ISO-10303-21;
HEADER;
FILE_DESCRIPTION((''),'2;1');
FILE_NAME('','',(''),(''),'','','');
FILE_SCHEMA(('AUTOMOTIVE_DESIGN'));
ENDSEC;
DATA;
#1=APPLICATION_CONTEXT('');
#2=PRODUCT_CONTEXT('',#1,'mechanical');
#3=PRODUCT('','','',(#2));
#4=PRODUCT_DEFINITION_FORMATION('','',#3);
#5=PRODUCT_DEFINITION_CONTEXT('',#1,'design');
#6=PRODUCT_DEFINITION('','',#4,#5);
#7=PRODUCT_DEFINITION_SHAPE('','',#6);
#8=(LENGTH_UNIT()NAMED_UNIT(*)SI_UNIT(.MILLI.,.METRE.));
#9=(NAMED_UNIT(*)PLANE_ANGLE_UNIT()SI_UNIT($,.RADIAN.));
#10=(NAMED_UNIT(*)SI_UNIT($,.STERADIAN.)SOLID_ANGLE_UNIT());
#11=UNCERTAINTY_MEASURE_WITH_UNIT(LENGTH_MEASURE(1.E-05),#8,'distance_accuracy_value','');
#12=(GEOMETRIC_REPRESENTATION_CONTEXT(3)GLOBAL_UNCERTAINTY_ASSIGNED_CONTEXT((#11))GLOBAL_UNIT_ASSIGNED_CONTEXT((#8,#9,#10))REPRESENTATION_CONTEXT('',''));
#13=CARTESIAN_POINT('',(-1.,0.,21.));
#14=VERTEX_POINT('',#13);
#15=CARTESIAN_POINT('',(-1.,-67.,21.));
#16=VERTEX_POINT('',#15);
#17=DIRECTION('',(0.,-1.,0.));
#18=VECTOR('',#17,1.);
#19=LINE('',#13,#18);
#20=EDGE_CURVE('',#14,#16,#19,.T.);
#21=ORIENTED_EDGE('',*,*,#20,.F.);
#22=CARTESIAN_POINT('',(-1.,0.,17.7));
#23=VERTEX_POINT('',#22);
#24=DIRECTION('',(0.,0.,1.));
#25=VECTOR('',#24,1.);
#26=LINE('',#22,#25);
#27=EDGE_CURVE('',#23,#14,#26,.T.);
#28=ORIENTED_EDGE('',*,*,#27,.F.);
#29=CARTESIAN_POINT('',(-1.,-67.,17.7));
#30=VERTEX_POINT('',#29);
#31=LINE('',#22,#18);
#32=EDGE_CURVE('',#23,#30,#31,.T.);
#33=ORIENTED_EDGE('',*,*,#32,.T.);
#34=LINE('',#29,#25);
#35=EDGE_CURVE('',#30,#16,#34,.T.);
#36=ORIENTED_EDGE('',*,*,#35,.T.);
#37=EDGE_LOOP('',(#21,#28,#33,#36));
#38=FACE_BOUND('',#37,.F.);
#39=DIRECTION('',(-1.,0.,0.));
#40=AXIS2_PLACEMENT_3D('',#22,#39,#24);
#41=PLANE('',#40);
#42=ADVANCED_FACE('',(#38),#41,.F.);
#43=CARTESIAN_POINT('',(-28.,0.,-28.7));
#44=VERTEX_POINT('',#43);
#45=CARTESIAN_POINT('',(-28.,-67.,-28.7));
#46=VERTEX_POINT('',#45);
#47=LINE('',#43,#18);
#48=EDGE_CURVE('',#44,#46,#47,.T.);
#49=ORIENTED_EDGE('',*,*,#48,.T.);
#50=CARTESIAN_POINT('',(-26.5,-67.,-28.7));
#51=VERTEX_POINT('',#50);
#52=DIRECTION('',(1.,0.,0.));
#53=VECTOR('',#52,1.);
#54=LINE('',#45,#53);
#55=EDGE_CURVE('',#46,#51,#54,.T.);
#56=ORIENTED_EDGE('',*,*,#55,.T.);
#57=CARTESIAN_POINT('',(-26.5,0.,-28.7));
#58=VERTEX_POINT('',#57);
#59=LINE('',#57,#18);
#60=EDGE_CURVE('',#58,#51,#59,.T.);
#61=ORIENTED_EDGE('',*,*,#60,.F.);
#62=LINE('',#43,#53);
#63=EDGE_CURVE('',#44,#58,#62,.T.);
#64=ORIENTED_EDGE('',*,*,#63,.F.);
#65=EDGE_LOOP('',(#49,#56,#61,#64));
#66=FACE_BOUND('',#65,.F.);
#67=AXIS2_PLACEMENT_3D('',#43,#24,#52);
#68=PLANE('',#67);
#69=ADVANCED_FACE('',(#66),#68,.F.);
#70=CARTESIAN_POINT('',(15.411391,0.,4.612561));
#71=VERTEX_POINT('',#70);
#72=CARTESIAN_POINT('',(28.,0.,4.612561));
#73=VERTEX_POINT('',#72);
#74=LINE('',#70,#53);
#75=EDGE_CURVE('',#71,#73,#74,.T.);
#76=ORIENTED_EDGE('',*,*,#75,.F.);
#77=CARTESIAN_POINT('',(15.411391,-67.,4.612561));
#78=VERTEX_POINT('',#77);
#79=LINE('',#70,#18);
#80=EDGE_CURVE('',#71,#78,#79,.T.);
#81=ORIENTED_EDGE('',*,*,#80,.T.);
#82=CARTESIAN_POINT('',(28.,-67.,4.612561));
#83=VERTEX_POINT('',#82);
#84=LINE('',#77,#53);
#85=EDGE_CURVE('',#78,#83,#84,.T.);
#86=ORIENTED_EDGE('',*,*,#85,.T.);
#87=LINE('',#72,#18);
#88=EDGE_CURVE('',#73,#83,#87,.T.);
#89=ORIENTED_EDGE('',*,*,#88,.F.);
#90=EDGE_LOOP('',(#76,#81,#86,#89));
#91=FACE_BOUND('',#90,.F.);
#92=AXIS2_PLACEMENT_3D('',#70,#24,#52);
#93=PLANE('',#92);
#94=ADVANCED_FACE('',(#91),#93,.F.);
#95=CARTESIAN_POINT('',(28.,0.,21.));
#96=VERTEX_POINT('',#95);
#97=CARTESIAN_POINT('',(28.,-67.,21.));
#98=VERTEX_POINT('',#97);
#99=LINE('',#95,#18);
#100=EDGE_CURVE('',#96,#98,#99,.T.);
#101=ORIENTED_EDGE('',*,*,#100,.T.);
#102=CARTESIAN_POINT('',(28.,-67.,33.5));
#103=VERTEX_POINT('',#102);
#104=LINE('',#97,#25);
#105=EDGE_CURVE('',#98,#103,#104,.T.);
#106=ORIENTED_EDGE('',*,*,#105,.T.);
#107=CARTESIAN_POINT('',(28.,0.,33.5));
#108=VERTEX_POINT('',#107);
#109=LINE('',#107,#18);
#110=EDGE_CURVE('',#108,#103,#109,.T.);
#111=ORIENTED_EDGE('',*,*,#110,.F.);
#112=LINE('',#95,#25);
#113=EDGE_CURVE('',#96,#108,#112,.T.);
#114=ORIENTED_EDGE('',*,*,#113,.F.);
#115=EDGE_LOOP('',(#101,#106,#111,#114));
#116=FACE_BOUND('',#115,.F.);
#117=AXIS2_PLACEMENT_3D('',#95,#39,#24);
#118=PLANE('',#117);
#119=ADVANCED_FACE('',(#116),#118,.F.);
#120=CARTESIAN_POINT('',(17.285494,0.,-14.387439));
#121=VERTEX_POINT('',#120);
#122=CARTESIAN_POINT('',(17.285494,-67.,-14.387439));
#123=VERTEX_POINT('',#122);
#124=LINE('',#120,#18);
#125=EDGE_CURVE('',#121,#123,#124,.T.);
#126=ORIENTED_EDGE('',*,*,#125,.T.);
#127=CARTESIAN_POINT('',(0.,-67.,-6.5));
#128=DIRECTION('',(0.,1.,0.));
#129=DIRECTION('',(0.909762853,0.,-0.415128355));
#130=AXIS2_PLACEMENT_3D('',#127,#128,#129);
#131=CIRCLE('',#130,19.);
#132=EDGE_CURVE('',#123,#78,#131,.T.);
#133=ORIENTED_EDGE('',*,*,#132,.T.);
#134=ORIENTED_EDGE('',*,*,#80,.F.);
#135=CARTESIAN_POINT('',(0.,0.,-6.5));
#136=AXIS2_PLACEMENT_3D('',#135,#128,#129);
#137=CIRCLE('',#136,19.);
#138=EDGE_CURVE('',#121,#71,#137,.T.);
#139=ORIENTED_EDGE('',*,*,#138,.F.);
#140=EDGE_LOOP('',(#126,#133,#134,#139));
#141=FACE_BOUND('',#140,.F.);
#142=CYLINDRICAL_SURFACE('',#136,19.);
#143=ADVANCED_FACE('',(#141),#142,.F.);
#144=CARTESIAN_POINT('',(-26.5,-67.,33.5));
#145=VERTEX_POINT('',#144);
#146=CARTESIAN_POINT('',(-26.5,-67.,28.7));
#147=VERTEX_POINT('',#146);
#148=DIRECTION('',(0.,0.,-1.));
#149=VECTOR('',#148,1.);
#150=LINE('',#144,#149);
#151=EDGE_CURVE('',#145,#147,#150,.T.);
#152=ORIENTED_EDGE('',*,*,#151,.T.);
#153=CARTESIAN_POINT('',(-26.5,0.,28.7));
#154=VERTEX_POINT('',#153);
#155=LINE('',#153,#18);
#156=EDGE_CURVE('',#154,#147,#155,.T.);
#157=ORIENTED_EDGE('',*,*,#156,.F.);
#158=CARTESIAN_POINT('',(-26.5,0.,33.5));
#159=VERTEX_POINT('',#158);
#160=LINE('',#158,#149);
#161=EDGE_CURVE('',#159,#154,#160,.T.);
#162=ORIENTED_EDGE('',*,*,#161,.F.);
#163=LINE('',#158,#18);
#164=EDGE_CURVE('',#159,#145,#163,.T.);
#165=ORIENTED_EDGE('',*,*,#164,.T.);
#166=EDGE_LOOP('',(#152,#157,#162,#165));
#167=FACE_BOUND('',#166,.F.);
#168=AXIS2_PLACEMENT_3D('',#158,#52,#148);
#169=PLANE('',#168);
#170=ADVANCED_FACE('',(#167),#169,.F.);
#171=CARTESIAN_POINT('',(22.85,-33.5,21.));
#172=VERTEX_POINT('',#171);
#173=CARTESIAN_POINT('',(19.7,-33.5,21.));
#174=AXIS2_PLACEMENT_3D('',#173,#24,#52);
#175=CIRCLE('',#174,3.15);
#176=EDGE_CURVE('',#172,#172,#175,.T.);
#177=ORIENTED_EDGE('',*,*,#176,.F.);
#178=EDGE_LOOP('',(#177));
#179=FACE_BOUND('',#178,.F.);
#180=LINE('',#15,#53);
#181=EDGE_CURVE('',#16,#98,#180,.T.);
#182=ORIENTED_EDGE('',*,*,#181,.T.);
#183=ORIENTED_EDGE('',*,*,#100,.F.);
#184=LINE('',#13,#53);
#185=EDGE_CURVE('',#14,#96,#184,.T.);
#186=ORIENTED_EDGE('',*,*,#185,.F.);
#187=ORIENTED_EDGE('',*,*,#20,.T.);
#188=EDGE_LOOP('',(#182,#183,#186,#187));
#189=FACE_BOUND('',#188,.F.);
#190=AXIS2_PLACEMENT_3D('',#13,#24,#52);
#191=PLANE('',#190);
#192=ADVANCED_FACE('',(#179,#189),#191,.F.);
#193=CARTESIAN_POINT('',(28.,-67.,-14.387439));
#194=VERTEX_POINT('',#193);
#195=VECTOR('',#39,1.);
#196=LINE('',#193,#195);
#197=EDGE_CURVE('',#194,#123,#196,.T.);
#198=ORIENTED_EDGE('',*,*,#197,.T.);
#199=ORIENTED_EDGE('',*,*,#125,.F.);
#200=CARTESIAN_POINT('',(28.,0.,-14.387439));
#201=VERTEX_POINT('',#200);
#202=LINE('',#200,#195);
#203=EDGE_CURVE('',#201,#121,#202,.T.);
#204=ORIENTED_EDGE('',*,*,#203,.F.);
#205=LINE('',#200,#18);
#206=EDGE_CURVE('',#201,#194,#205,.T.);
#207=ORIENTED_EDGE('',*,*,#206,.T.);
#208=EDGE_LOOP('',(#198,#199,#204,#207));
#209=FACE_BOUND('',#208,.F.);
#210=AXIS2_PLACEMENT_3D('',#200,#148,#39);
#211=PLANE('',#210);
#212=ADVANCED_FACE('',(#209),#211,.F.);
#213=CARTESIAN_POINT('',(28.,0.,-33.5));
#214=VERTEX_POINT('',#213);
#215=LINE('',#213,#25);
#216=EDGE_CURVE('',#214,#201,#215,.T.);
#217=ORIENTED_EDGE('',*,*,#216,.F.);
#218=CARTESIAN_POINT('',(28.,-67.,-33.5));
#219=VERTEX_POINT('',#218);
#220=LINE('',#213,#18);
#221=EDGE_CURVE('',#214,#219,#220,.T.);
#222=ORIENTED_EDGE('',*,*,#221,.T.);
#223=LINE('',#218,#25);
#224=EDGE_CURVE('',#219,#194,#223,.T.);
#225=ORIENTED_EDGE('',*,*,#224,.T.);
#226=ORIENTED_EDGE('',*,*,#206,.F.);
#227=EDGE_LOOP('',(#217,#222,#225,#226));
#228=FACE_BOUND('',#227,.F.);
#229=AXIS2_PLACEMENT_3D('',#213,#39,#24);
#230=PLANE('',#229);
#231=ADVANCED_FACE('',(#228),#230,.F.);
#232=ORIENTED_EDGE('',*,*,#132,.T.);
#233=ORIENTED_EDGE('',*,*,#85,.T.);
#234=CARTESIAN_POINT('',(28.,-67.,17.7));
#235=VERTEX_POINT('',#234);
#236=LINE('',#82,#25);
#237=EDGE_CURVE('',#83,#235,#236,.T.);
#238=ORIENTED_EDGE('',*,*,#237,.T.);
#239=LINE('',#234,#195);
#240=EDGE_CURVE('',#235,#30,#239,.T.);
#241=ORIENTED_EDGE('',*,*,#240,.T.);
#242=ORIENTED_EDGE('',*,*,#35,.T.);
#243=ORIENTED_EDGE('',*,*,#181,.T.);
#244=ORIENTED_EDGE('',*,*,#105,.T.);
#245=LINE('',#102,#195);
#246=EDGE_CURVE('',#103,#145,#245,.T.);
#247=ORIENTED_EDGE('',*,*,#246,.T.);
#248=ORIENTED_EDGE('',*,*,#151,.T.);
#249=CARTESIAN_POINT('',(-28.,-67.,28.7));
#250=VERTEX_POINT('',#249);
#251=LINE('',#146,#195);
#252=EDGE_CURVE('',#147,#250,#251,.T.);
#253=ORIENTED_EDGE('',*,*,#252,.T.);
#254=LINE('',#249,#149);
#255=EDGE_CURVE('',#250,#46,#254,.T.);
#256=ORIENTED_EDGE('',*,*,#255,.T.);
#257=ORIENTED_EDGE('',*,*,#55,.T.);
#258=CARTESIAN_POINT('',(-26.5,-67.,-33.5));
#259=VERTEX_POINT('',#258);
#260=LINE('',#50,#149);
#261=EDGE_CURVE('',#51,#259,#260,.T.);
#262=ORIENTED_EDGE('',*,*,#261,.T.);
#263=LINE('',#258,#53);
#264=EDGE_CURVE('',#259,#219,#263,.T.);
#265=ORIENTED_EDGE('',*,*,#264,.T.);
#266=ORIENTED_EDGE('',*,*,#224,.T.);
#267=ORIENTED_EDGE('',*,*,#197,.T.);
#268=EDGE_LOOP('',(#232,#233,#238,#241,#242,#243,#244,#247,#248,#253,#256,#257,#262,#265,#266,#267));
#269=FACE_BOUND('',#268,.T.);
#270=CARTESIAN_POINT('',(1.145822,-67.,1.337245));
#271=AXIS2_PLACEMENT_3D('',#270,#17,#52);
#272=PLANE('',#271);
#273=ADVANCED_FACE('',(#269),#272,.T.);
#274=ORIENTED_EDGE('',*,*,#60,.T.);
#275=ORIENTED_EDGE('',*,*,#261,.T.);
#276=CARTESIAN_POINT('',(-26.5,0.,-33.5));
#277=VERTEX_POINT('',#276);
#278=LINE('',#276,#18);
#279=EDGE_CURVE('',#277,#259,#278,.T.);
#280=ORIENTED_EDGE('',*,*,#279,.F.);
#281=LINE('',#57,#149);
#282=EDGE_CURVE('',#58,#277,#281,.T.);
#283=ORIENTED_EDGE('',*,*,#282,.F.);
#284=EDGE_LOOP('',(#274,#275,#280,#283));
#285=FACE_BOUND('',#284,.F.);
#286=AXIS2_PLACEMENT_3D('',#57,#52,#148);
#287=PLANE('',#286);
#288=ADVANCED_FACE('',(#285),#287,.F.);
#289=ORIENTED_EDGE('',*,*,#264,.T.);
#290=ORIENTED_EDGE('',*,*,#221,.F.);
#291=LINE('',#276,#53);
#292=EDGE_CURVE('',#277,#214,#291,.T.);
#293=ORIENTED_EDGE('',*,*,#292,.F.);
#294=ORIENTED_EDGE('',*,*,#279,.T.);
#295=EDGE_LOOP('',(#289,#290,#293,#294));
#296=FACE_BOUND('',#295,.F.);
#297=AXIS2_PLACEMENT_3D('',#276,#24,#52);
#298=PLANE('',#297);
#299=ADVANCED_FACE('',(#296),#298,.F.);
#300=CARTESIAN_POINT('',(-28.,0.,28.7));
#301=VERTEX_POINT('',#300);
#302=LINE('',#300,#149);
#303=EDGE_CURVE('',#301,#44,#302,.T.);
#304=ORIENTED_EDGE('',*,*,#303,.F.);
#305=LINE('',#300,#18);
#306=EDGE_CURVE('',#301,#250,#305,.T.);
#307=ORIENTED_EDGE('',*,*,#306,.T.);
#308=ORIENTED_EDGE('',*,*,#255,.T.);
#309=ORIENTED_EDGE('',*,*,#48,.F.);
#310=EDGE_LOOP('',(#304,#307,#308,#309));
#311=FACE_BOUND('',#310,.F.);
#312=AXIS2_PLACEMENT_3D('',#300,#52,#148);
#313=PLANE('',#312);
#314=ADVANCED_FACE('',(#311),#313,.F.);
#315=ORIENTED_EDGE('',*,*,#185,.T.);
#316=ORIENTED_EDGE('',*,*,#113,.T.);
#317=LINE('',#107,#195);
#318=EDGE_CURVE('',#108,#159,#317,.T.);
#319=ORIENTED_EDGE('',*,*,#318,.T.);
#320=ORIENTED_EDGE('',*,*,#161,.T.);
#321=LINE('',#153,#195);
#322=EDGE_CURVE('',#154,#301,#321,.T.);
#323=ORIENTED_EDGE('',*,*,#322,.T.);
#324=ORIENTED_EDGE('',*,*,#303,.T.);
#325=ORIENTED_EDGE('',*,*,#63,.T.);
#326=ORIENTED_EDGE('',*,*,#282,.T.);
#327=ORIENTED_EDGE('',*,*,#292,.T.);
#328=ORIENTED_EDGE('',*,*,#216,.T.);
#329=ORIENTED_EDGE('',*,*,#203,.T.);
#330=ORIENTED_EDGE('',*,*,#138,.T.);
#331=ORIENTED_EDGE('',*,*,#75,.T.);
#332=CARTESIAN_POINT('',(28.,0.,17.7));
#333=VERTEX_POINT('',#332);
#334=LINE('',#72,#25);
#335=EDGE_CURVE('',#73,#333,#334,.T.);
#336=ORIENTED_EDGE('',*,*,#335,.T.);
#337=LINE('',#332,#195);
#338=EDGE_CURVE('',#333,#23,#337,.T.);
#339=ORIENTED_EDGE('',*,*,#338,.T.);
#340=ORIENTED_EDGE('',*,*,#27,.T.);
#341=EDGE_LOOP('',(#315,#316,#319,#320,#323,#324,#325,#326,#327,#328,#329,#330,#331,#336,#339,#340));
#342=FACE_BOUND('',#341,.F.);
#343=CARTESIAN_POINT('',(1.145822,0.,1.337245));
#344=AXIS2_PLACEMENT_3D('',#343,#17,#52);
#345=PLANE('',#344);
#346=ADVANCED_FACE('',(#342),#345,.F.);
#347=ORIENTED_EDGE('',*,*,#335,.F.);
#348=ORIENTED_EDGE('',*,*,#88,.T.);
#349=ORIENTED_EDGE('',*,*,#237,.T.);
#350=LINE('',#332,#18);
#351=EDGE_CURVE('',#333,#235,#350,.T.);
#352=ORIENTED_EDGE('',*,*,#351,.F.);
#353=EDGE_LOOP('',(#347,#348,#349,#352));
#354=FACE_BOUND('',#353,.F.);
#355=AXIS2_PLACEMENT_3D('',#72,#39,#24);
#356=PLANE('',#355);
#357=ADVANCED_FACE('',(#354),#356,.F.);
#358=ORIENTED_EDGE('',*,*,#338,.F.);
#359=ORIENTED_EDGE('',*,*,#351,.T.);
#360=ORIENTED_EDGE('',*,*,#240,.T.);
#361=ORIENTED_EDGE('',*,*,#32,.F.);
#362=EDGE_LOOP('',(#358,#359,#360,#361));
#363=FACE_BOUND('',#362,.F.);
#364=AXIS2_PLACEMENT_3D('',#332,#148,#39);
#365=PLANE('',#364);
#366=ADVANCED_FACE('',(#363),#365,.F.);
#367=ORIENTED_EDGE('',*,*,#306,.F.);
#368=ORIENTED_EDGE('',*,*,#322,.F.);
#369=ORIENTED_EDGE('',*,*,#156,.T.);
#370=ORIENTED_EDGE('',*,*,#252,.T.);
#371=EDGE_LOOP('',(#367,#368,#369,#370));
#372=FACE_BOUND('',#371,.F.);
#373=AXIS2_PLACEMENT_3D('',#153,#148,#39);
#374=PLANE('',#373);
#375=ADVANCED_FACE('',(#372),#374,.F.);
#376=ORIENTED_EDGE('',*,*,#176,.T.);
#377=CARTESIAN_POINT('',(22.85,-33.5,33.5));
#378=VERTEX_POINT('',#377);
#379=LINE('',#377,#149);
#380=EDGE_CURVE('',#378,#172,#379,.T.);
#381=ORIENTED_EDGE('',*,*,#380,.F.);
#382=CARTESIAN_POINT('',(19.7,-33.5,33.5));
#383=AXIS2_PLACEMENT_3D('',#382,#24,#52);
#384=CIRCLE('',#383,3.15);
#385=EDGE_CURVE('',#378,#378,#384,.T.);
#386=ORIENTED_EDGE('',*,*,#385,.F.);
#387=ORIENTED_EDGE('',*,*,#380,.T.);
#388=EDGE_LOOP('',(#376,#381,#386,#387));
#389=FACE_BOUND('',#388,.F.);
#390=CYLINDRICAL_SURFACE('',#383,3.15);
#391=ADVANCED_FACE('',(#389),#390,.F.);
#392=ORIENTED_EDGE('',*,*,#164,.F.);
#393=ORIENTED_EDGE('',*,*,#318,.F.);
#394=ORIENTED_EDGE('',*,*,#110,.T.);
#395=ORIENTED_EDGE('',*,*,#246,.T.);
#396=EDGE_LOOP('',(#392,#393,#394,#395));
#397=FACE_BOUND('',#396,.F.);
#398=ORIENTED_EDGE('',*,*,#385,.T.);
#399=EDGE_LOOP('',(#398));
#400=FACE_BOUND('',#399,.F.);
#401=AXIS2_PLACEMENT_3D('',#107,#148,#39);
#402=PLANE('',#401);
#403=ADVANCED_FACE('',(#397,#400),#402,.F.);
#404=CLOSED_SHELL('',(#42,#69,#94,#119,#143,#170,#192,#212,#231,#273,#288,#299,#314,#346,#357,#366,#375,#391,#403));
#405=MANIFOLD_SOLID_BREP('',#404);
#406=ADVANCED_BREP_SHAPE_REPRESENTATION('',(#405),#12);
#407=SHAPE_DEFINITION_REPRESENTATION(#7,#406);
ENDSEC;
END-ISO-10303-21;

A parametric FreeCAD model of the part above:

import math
import FreeCAD as App
import Part
import Sketcher
from FreeCAD import Vector

doc = App.newDocument("Part")
body = doc.addObject("PartDesign::Body", "Body")

# Sketch on XZ plane
sketch1 = doc.addObject("Sketcher::SketchObject", "Sketch")
body.addObject(sketch1)
sketch1.AttachmentSupport = (doc.XZ_Plane, [""])
sketch1.MapMode = "FlatFace"
sketch1.addGeometry(Part.LineSegment(Vector(-26.5, -33.5, 0), Vector(28, -33.5, 0)), False)
sketch1.addGeometry(Part.LineSegment(Vector(28, -33.5, 0), Vector(28, -14.4, 0)), False)
sketch1.addGeometry(Part.LineSegment(Vector(28, -14.4, 0), Vector(17.3, -14.4, 0)), False)
sketch1.addGeometry(Part.ArcOfCircle(Part.Circle(Vector(0, -6.5, 0), Vector(0, 0, 1), 19), math.radians(36), math.radians(335)), False)
sketch1.addGeometry(Part.LineSegment(Vector(15.4, 4.6, 0), Vector(28, 4.6, 0)), False)
sketch1.addGeometry(Part.LineSegment(Vector(28, 4.6, 0), Vector(28, 17.7, 0)), False)
sketch1.addGeometry(Part.LineSegment(Vector(28, 17.7, 0), Vector(-1, 17.7, 0)), False)
sketch1.addGeometry(Part.LineSegment(Vector(-1, 17.7, 0), Vector(-1, 21, 0)), False)
sketch1.addGeometry(Part.LineSegment(Vector(-1, 21, 0), Vector(28, 21, 0)), False)
sketch1.addGeometry(Part.LineSegment(Vector(28, 21, 0), Vector(28, 33.5, 0)), False)
sketch1.addGeometry(Part.LineSegment(Vector(28, 33.5, 0), Vector(-26.5, 33.5, 0)), False)
sketch1.addGeometry(Part.LineSegment(Vector(-26.5, 33.5, 0), Vector(-26.5, 28.7, 0)), False)
sketch1.addGeometry(Part.LineSegment(Vector(-26.5, 28.7, 0), Vector(-28, 28.7, 0)), False)
sketch1.addGeometry(Part.LineSegment(Vector(-28, 28.7, 0), Vector(-28, -28.7, 0)), False)
sketch1.addGeometry(Part.LineSegment(Vector(-28, -28.7, 0), Vector(-26.5, -28.7, 0)), False)
sketch1.addGeometry(Part.LineSegment(Vector(-26.5, -28.7, 0), Vector(-26.5, -33.5, 0)), False)
sketch1.addConstraint(Sketcher.Constraint("Coincident", 0, 2, 1, 1))
sketch1.addConstraint(Sketcher.Constraint("Coincident", 1, 2, 2, 1))
sketch1.addConstraint(Sketcher.Constraint("Coincident", 2, 2, 3, 2))
sketch1.addConstraint(Sketcher.Constraint("Coincident", 3, 1, 4, 1))
sketch1.addConstraint(Sketcher.Constraint("Coincident", 4, 2, 5, 1))
sketch1.addConstraint(Sketcher.Constraint("Coincident", 5, 2, 6, 1))
sketch1.addConstraint(Sketcher.Constraint("Coincident", 6, 2, 7, 1))
sketch1.addConstraint(Sketcher.Constraint("Coincident", 7, 2, 8, 1))
sketch1.addConstraint(Sketcher.Constraint("Coincident", 8, 2, 9, 1))
sketch1.addConstraint(Sketcher.Constraint("Coincident", 9, 2, 10, 1))
sketch1.addConstraint(Sketcher.Constraint("Coincident", 10, 2, 11, 1))
sketch1.addConstraint(Sketcher.Constraint("Coincident", 11, 2, 12, 1))
sketch1.addConstraint(Sketcher.Constraint("Coincident", 12, 2, 13, 1))
sketch1.addConstraint(Sketcher.Constraint("Coincident", 13, 2, 14, 1))
sketch1.addConstraint(Sketcher.Constraint("Coincident", 14, 2, 15, 1))
sketch1.addConstraint(Sketcher.Constraint("Coincident", 15, 2, 0, 1))
sketch1.addConstraint(Sketcher.Constraint("Horizontal", 0))
sketch1.addConstraint(Sketcher.Constraint("Vertical", 1))
sketch1.addConstraint(Sketcher.Constraint("Horizontal", 2))
sketch1.addConstraint(Sketcher.Constraint("Horizontal", 4))
sketch1.addConstraint(Sketcher.Constraint("Vertical", 5))
sketch1.addConstraint(Sketcher.Constraint("Horizontal", 6))
sketch1.addConstraint(Sketcher.Constraint("Vertical", 7))
sketch1.addConstraint(Sketcher.Constraint("Horizontal", 8))
sketch1.addConstraint(Sketcher.Constraint("Vertical", 9))
sketch1.addConstraint(Sketcher.Constraint("Horizontal", 10))
sketch1.addConstraint(Sketcher.Constraint("Vertical", 11))
sketch1.addConstraint(Sketcher.Constraint("Horizontal", 12))
sketch1.addConstraint(Sketcher.Constraint("Vertical", 13))
sketch1.addConstraint(Sketcher.Constraint("Horizontal", 14))
sketch1.addConstraint(Sketcher.Constraint("Vertical", 15))
sketch1.addConstraint(Sketcher.Constraint("Symmetric", 0, 2, 9, 2, -1))
sketch1.addConstraint(Sketcher.Constraint("Symmetric", 11, 2, 14, 2, -1))
sketch1.addConstraint(Sketcher.Constraint("PointOnObject", 3, 3, -2))
sketch1.addConstraint(Sketcher.Constraint("Vertical", 1, 2, 4, 2))
sketch1.addConstraint(Sketcher.Constraint("Radius", 3, 19.0))
sketch1.addConstraint(Sketcher.Constraint("DistanceX", 6, 2, 6, 1, 29.0))
sketch1.addConstraint(Sketcher.Constraint("DistanceX", 0, 1, 0, 2, 54.5))
sketch1.addConstraint(Sketcher.Constraint("DistanceX", 12, 2, 12, 1, 1.5))
sketch1.addConstraint(Sketcher.Constraint("DistanceY", 7, 1, 7, 2, 3.3))
sketch1.addConstraint(Sketcher.Constraint("DistanceY", 9, 1, 9, 2, 12.5))
sketch1.addConstraint(Sketcher.Constraint("DistanceY", 11, 2, 11, 1, 4.8))
sketch1.addConstraint(Sketcher.Constraint("DistanceY", 13, 2, 13, 1, 57.4))
sketch1.addConstraint(Sketcher.Constraint("DistanceX", -1, 1, 0, 2, 28.0))
sketch1.addConstraint(Sketcher.Constraint("DistanceY", 0, 2, 3, 3, 27.0))
sketch1.addConstraint(Sketcher.Constraint("DistanceY", 2, 2, 3, 1, 19.0))
sketch1.addConstraint(Sketcher.Constraint("DistanceX", 4, 1, 4, 2, 12.588609))
pad1 = doc.addObject("PartDesign::Pad", "Pad")
body.addObject(pad1)
pad1.Profile = sketch1
pad1.Length = 67

# Sketch on XY plane
sketch2 = doc.addObject("Sketcher::SketchObject", "Sketch001")
body.addObject(sketch2)
sketch2.AttachmentSupport = (doc.XY_Plane, [""])
sketch2.MapMode = "FlatFace"
sketch2.AttachmentOffset = App.Placement(Vector(0, 0, 33.5), App.Rotation())
sketch2.addGeometry(Part.Circle(Vector(19.7, -33.5, 0), Vector(0, 0, 1), 3.1), False)
sketch2.addConstraint(Sketcher.Constraint("Diameter", 0, 6.3))
sketch2.addConstraint(Sketcher.Constraint("DistanceX", -1, 1, 0, 3, 19.7))
sketch2.addConstraint(Sketcher.Constraint("DistanceY", 0, 3, -1, 1, 33.5))
pocket1 = doc.addObject("PartDesign::Pocket", "Pocket")
body.addObject(pocket1)
pocket1.Profile = sketch2
pocket1.Length = 12.5

doc.recompute()
